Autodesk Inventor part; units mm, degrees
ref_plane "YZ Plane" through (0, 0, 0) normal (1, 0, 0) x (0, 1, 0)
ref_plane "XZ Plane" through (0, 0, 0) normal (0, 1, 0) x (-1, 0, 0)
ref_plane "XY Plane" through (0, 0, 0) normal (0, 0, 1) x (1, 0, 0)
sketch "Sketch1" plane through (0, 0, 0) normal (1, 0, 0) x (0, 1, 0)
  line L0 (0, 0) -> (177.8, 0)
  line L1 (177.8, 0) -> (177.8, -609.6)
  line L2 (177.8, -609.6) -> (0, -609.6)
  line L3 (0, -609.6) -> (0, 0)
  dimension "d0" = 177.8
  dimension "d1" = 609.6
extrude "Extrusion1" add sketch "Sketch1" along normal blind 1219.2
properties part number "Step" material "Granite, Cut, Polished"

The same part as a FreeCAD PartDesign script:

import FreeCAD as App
import Part
import Sketcher
Q = App.Units.Quantity


def add_polygon(sketch, points):
    """Adds a closed chain of lines whose ends are joined by coincident constraints."""
    first, n = sketch.GeometryCount, len(points)
    for a, b in zip(points, points[1:] + points[:1]):
        sketch.addGeometry(Part.LineSegment(App.Vector(*a, 0), App.Vector(*b, 0)), False)
    for i in range(n):
        sketch.addConstraint(Sketcher.Constraint("Coincident", first + i, 2, first + (i + 1) % n, 1))

doc = App.newDocument("Part")
body = doc.addObject("PartDesign::Body", "Body")

sketch1 = body.newObject("Sketcher::SketchObject", "Sketch")
sketch1.AttachmentSupport = (doc.getObject("YZ_Plane"), [""])
sketch1.MapMode = "FlatFace"
add_polygon(sketch1, [(178, 0), (0, 0), (0, -610), (178, -610)])
sketch1.addConstraint(Sketcher.Constraint("Horizontal", 0))
sketch1.addConstraint(Sketcher.Constraint("Vertical", 1))
sketch1.addConstraint(Sketcher.Constraint("Horizontal", 2))
sketch1.addConstraint(Sketcher.Constraint("Vertical", 3))
sketch1.addConstraint(Sketcher.Constraint("Coincident", 0, 2, -1, 1))
sketch1.addConstraint(Sketcher.Constraint("DistanceX", 0, 2, 0, 1, Q("7 in")))
sketch1.addConstraint(Sketcher.Constraint("DistanceY", 1, 2, 1, 1, Q("24 in")))
pad1 = body.newObject("PartDesign::Pad", "Pad")
pad1.Profile = sketch1
pad1.Length = Q("48 in")

doc.recompute()
